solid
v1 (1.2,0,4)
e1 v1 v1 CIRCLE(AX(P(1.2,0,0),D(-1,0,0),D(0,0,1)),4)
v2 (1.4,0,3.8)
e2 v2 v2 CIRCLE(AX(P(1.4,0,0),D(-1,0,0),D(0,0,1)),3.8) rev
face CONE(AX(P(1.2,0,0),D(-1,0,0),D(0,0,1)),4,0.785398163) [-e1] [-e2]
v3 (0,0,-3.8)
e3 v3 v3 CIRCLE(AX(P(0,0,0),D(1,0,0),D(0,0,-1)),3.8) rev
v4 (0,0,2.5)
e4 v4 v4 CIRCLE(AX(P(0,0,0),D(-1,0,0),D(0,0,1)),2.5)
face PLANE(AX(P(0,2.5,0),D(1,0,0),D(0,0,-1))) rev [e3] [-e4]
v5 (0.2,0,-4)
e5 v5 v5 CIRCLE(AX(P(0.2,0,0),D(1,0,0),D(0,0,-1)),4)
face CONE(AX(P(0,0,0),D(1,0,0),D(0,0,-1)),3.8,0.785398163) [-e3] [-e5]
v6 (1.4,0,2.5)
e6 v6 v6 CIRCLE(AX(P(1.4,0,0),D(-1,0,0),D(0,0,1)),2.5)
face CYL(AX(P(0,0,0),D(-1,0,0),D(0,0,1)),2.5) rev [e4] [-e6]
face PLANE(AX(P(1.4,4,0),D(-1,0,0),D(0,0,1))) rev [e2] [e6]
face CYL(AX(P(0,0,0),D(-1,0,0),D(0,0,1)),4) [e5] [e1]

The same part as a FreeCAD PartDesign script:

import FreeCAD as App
import Part
import Sketcher

V = App.Vector


def edges_at(feature, points):
    """Names of the edges that pass closest to the given points."""
    edges = feature.Shape.Edges
    near = lambda p: min(range(len(edges)), key=lambda i: edges[i].distToShape(Part.Vertex(*p))[0])
    return sorted({f"Edge{near(p) + 1}" for p in points})

doc = App.newDocument("Part")
body = doc.addObject("PartDesign::Body", "Body")

# Sketch on XY plane
sketch1 = body.newObject("Sketcher::SketchObject", "Sketch")
sketch1.AttachmentSupport = (doc.getObject("XY_Plane"), [""])
sketch1.MapMode = "FlatFace"
sketch1.addGeometry([
    Part.LineSegment(V(0, 4, 0), V(0, 2.5, 0)),
    Part.LineSegment(V(0, 2.5, 0), V(1.4, 2.5, 0)),
    Part.LineSegment(V(1.4, 2.5, 0), V(1.4, 4, 0)),
    Part.LineSegment(V(1.4, 4, 0), V(0, 4, 0)),
], False)
sketch1.addConstraint([
    Sketcher.Constraint("Coincident", 0, 2, 1, 1),
    Sketcher.Constraint("Coincident", 1, 2, 2, 1),
    Sketcher.Constraint("Coincident", 2, 2, 3, 1),
    Sketcher.Constraint("Coincident", 3, 2, 0, 1),
    Sketcher.Constraint("Vertical", 0),
    Sketcher.Constraint("Horizontal", 1),
    Sketcher.Constraint("Vertical", 2),
    Sketcher.Constraint("Horizontal", 3),
    Sketcher.Constraint("PointOnObject", 0, 2, -2),
    Sketcher.Constraint("DistanceX", 1, 1, 1, 2, 1.4),
    Sketcher.Constraint("DistanceY", 0, 2, 0, 1, 1.5),
    Sketcher.Constraint("DistanceY", -1, 1, 2, 2, 4.0),
])
revolution = body.newObject("PartDesign::Revolution", "Revolution")
revolution.Profile = sketch1
revolution.ReferenceAxis = (sketch1, ["H_Axis"])
revolution.Angle = 360
doc.recompute()

chamfer = body.newObject("PartDesign::Chamfer", "Chamfer")
chamfer.Base = (revolution, edges_at(revolution, [(1.4, 0, -4), (0, 0, -4)]))
chamfer.Size = 0.2

doc.recompute()
